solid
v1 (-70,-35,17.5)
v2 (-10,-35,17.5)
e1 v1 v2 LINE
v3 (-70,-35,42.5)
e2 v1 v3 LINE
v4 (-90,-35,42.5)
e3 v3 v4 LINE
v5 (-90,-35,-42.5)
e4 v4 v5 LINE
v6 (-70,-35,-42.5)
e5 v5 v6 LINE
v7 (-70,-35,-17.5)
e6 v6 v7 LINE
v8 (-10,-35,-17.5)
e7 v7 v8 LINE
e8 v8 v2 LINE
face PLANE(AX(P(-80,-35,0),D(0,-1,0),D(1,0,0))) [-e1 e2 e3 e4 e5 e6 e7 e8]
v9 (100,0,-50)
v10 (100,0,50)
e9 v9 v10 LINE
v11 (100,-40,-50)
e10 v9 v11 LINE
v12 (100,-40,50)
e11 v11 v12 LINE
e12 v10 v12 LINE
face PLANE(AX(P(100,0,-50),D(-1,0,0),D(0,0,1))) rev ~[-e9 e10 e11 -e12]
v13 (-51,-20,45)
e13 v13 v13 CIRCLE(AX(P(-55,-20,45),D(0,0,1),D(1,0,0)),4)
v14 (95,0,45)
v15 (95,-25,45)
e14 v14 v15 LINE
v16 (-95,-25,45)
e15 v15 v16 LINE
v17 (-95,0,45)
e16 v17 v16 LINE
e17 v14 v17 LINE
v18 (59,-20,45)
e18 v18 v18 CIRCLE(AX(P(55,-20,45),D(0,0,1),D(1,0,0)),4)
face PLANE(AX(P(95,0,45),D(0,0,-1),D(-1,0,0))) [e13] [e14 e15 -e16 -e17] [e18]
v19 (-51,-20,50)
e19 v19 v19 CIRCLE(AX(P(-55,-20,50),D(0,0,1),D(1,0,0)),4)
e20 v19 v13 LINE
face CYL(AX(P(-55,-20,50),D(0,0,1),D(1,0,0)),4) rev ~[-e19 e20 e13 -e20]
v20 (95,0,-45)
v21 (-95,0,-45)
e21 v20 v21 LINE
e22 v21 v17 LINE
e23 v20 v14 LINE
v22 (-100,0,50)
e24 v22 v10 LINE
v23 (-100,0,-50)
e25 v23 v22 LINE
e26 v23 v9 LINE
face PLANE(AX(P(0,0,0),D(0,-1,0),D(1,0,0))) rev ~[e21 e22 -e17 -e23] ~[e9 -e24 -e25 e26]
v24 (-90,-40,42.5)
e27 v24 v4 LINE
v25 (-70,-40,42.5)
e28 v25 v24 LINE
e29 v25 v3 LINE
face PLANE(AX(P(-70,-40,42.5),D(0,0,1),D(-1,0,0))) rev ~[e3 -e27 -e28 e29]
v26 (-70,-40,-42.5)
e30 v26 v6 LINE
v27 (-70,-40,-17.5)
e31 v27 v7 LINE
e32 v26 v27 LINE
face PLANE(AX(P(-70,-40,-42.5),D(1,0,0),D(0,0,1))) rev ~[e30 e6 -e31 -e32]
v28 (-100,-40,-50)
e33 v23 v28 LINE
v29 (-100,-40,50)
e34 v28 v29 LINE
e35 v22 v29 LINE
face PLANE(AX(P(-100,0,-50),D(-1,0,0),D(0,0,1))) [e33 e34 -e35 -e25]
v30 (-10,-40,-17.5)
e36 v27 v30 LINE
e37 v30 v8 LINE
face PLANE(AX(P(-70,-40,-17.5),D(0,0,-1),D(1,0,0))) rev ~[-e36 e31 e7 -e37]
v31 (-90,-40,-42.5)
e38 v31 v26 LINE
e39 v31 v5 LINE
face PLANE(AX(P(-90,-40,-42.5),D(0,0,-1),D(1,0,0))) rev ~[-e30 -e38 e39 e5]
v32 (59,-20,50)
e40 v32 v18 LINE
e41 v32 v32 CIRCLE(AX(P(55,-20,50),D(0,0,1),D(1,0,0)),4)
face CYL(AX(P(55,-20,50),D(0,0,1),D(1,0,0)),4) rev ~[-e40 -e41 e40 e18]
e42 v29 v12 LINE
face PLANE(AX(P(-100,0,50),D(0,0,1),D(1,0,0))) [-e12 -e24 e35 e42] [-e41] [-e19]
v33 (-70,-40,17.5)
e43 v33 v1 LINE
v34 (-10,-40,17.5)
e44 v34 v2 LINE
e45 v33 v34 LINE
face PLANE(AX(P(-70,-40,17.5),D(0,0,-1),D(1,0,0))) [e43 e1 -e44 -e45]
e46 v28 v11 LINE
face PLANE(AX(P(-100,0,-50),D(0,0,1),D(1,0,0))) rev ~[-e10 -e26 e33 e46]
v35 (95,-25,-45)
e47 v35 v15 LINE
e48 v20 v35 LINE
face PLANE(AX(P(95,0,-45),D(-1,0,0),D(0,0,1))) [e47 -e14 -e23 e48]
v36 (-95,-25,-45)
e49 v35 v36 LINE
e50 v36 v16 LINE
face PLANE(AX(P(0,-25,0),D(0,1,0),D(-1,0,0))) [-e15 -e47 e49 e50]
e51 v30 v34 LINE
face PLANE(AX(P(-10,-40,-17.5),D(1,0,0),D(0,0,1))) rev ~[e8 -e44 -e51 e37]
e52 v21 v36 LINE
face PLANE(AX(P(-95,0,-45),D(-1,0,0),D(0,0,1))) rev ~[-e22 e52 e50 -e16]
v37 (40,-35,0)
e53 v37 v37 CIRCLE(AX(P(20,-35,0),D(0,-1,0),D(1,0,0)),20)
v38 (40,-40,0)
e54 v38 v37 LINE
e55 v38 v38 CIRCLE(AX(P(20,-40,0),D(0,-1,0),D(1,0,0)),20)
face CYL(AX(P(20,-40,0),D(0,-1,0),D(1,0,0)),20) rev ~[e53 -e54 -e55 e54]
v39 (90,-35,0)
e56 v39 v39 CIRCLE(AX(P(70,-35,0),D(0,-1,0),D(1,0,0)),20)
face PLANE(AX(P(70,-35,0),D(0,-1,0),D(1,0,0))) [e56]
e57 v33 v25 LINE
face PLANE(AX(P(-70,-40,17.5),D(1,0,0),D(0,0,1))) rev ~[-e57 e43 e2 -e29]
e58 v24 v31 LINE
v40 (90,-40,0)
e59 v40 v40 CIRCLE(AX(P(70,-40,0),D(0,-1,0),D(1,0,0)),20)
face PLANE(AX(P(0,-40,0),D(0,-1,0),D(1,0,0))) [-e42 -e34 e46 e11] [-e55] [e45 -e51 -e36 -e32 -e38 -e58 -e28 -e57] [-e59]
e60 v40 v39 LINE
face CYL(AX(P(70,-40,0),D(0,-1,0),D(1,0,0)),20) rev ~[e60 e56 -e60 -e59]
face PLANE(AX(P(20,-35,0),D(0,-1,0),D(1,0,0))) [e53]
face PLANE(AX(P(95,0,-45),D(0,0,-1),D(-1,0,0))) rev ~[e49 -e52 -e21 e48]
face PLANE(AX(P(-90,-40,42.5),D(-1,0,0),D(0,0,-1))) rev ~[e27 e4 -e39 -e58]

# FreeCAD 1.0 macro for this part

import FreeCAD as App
import Part
import Sketcher
from FreeCAD import Vector


def add_polygon(sketch, points):
    """Adds a closed chain of lines whose ends are joined by coincident constraints."""
    first, n = sketch.GeometryCount, len(points)
    for a, b in zip(points, points[1:] + points[:1]):
        sketch.addGeometry(Part.LineSegment(App.Vector(*a, 0), App.Vector(*b, 0)), False)
    for i in range(n):
        sketch.addConstraint(Sketcher.Constraint("Coincident", first + i, 2, first + (i + 1) % n, 1))

doc = App.newDocument("Part")
params = doc.addObject("Spreadsheet::Sheet", "Params")
for row, (alias, value) in enumerate([
    ("sketch1_width", "200 mm"),
    ("sketch1_height", "100 mm"),
    ("pad1_length", "40 mm"),
    ("sketch2_diameter", "40 mm"),
    ("sketch2_width", "20 mm"),
    ("sketch2_width2", "60 mm"),
    ("sketch2_height", "25 mm"),
    ("sketch2_height2", "35 mm"),
    ("pocket1_length", "5 mm"),
    ("sketch3_width", "190 mm"),
    ("sketch3_height", "90 mm"),
    ("pocket2_length", "25 mm"),
    ("sketch4_diameter", "8 mm"),
    ("pocket3_length", "40 mm"),
], start=1):
    params.set(f"A{row}", alias)
    params.set(f"B{row}", "=" + value)
    params.setAlias(f"B{row}", alias)

body = doc.addObject("PartDesign::Body", "Body")

# Sketch on XZ plane
sketch1 = doc.addObject("Sketcher::SketchObject", "Sketch")
body.addObject(sketch1)
sketch1.AttachmentSupport = (doc.XZ_Plane, [""])
sketch1.MapMode = "FlatFace"
add_polygon(sketch1, [(-100, 50), (-100, -50), (100, -50), (100, 50)])  # lines 0-3
sketch1.addConstraint([
    Sketcher.Constraint("Vertical", 0),
    Sketcher.Constraint("Horizontal", 1),
    Sketcher.Constraint("Vertical", 2),
    Sketcher.Constraint("Horizontal", 3),
    Sketcher.Constraint("Symmetric", 0, 2, 2, 2, -1, 1),
    Sketcher.Constraint("DistanceX", 1, 1, 1, 2, 200.0),
    Sketcher.Constraint("DistanceY", 0, 2, 0, 1, 100.0),
])
sketch1.setExpression("Constraints[9]", "Params.sketch1_width")
sketch1.setExpression("Constraints[10]", "Params.sketch1_height")
pad1 = doc.addObject("PartDesign::Pad", "Pad")
body.addObject(pad1)
pad1.Profile = sketch1
pad1.setExpression("Length", "Params.pad1_length")

# Sketch on XZ plane
sketch2 = doc.addObject("Sketcher::SketchObject", "Sketch001")
body.addObject(sketch2)
sketch2.AttachmentSupport = (doc.XZ_Plane, [""])
sketch2.MapMode = "FlatFace"
sketch2.AttachmentOffset = App.Placement(Vector(0, 0, 40), App.Rotation())
add_polygon(sketch2, [(-90, -42.5), (-70, -42.5), (-70, -17.5), (-10, -17.5), (-10, 17.5), (-70, 17.5), (-70, 42.5), (-90, 42.5)])  # lines 0-7
sketch2.addGeometry(Part.Circle(Vector(20, 0, 0), Vector(0, 0, 1), 20), False)  # 8
sketch2.addGeometry(Part.Circle(Vector(70, 0, 0), Vector(0, 0, 1), 20), False)  # 9
sketch2.addConstraint([
    Sketcher.Constraint("Horizontal", 0),
    Sketcher.Constraint("Vertical", 1),
    Sketcher.Constraint("Horizontal", 2),
    Sketcher.Constraint("Vertical", 3),
    Sketcher.Constraint("Horizontal", 4),
    Sketcher.Constraint("Vertical", 5),
    Sketcher.Constraint("Horizontal", 6),
    Sketcher.Constraint("Vertical", 7),
    Sketcher.Constraint("Equal", 8, 9),
    Sketcher.Constraint("Symmetric", 1, 2, 4, 2, -1),
    Sketcher.Constraint("PointOnObject", 8, 3, -1),
    Sketcher.Constraint("PointOnObject", 9, 3, -1),
    Sketcher.Constraint("Equal", 1, 5),
    Sketcher.Constraint("Diameter", 8, 40.0),
    Sketcher.Constraint("DistanceX", 0, 1, 0, 2, 20.0),
    Sketcher.Constraint("DistanceX", 2, 1, 2, 2, 60.0),
    Sketcher.Constraint("DistanceY", 1, 1, 1, 2, 25.0),
    Sketcher.Constraint("DistanceY", 3, 1, 3, 2, 35.0),
    Sketcher.Constraint("DistanceX", -1, 1, 8, 3, 20.0),
    Sketcher.Constraint("DistanceX", -1, 1, 9, 3, 70.0),
    Sketcher.Constraint("DistanceX", 0, 2, -1, 1, 70.0),
])
sketch2.setExpression("Constraints[21]", "Params.sketch2_diameter")
sketch2.setExpression("Constraints[22]", "Params.sketch2_width")
sketch2.setExpression("Constraints[23]", "Params.sketch2_width2")
sketch2.setExpression("Constraints[24]", "Params.sketch2_height")
sketch2.setExpression("Constraints[25]", "Params.sketch2_height2")
pocket1 = doc.addObject("PartDesign::Pocket", "Pocket")
body.addObject(pocket1)
pocket1.Profile = sketch2
pocket1.setExpression("Length", "Params.pocket1_length")

# Sketch on XZ plane
sketch3 = doc.addObject("Sketcher::SketchObject", "Sketch002")
body.addObject(sketch3)
sketch3.AttachmentSupport = (doc.XZ_Plane, [""])
sketch3.MapMode = "FlatFace"
add_polygon(sketch3, [(95, 45), (95, -45), (-95, -45), (-95, 45)])  # lines 0-3
sketch3.addConstraint([
    Sketcher.Constraint("Vertical", 0),
    Sketcher.Constraint("Horizontal", 1),
    Sketcher.Constraint("Vertical", 2),
    Sketcher.Constraint("Horizontal", 3),
    Sketcher.Constraint("Symmetric", 0, 2, 2, 2, -1, 1),
    Sketcher.Constraint("DistanceX", 1, 2, 1, 1, 190.0),
    Sketcher.Constraint("DistanceY", 0, 2, 0, 1, 90.0),
])
sketch3.setExpression("Constraints[9]", "Params.sketch3_width")
sketch3.setExpression("Constraints[10]", "Params.sketch3_height")
pocket2 = doc.addObject("PartDesign::Pocket", "Pocket001")
body.addObject(pocket2)
pocket2.Profile = sketch3
pocket2.setExpression("Length", "Params.pocket2_length")
pocket2.Reversed = True

# Sketch on XY plane
sketch4 = doc.addObject("Sketcher::SketchObject", "Sketch003")
body.addObject(sketch4)
sketch4.AttachmentSupport = (doc.XY_Plane, [""])
sketch4.MapMode = "FlatFace"
sketch4.AttachmentOffset = App.Placement(Vector(0, 0, 50), App.Rotation())
sketch4.addGeometry([
    Part.Circle(Vector(-55, -20, 0), Vector(0, 0, 1), 4),
    Part.Circle(Vector(55, -20, 0), Vector(0, 0, 1), 4),
], False)
sketch4.addConstraint([
    Sketcher.Constraint("Equal", 0, 1),
    Sketcher.Constraint("Symmetric", 0, 3, 1, 3, -2),
    Sketcher.Constraint("Diameter", 0, 8.0),
    Sketcher.Constraint("DistanceX", 0, 3, -1, 1, 55.0),
    Sketcher.Constraint("DistanceY", 0, 3, -1, 1, 20.0),
])
sketch4.setExpression("Constraints[2]", "Params.sketch4_diameter")
pocket3 = doc.addObject("PartDesign::Pocket", "Pocket002")
body.addObject(pocket3)
pocket3.Profile = sketch4
pocket3.setExpression("Length", "Params.pocket3_length")

doc.recompute()
